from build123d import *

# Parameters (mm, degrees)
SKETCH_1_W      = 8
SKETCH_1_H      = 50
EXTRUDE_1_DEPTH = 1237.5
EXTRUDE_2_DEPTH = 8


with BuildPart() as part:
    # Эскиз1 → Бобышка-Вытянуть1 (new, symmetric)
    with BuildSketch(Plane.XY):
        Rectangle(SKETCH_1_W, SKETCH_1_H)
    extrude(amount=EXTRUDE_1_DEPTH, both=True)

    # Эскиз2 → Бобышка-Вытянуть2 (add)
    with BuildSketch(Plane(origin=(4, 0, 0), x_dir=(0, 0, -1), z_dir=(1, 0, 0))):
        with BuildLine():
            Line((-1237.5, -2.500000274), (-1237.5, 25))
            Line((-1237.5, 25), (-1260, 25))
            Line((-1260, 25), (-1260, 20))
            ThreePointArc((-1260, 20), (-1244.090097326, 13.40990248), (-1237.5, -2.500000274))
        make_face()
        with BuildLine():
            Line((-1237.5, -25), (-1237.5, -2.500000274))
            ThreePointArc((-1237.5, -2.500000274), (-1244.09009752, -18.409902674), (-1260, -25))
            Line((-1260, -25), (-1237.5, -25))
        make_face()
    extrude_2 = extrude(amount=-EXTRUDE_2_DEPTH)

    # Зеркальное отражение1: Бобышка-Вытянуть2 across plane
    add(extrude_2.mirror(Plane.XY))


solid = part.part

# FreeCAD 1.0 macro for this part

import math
import FreeCAD as App
import Part
import Sketcher
from FreeCAD import Vector


def add_polygon(sketch, points):
    """Adds a closed chain of lines whose ends are joined by coincident constraints."""
    first, n = sketch.GeometryCount, len(points)
    for a, b in zip(points, points[1:] + points[:1]):
        sketch.addGeometry(Part.LineSegment(App.Vector(*a, 0), App.Vector(*b, 0)), False)
    for i in range(n):
        sketch.addConstraint(Sketcher.Constraint("Coincident", first + i, 2, first + (i + 1) % n, 1))

doc = App.newDocument("Part")
body = doc.addObject("PartDesign::Body", "Body")

# Sketch on XY plane
sketch1 = doc.addObject("Sketcher::SketchObject", "Sketch")
body.addObject(sketch1)
sketch1.AttachmentSupport = (doc.XY_Plane, [""])
sketch1.MapMode = "FlatFace"
add_polygon(sketch1, [(-4, 25), (-4, -25), (4, -25), (4, 25)])  # lines 0-3
sketch1.addConstraint([
    Sketcher.Constraint("Vertical", 0),
    Sketcher.Constraint("Horizontal", 1),
    Sketcher.Constraint("Vertical", 2),
    Sketcher.Constraint("Horizontal", 3),
    Sketcher.Constraint("Symmetric", 0, 2, 2, 2, -1, 1),
    Sketcher.Constraint("DistanceX", 1, 1, 1, 2, 8.0),
    Sketcher.Constraint("DistanceY", 0, 2, 0, 1, 50.0),
])
pad1 = doc.addObject("PartDesign::Pad", "Pad")
body.addObject(pad1)
pad1.Profile = sketch1
pad1.Length = 2475
pad1.Midplane = True

# Sketch on YZ plane
sketch2 = doc.addObject("Sketcher::SketchObject", "Sketch001")
body.addObject(sketch2)
sketch2.AttachmentSupport = (doc.YZ_Plane, [""])
sketch2.MapMode = "FlatFace"
sketch2.AttachmentOffset = App.Placement(Vector(0, 0, 4), App.Rotation())
sketch2.addGeometry([
    Part.LineSegment(Vector(-2.5, 1237.5, 0), Vector(25, 1237.5, 0)),  # 0
    Part.LineSegment(Vector(25, 1237.5, 0), Vector(25, 1260, 0)),  # 1
    Part.LineSegment(Vector(25, 1260, 0), Vector(20, 1260, 0)),  # 2
    Part.ArcOfCircle(Part.Circle(Vector(-2.5, 1260, 0), Vector(0, 0, 1), 22.5), math.radians(-90.000001), math.radians(0)),  # 3
    Part.LineSegment(Vector(-25, 1237.5, 0), Vector(-2.5, 1237.5, 0)),  # 4
    Part.ArcOfCircle(Part.Circle(Vector(-2.5, 1260, 0), Vector(0, 0, 1), 22.5), math.radians(180), math.radians(269.999999)),  # 5
    Part.LineSegment(Vector(-25, 1260, 0), Vector(-25, 1237.5, 0)),  # 6
], False)
sketch2.addConstraint([
    Sketcher.Constraint("Coincident", 0, 2, 1, 1),
    Sketcher.Constraint("Coincident", 1, 2, 2, 1),
    Sketcher.Constraint("Coincident", 2, 2, 3, 2),
    Sketcher.Constraint("Tangent", 3, 1, 0, 1),
    Sketcher.Constraint("Tangent", 4, 2, 5, 2),
    Sketcher.Constraint("Tangent", 5, 1, 6, 1),
    Sketcher.Constraint("Coincident", 6, 2, 4, 1),
    Sketcher.Constraint("Horizontal", 0),
    Sketcher.Constraint("Vertical", 1),
    Sketcher.Constraint("Horizontal", 2),
    Sketcher.Constraint("Horizontal", 4),
    Sketcher.Constraint("Vertical", 6),
    Sketcher.Constraint("Coincident", 5, 3, 3, 3),
    Sketcher.Constraint("Equal", 3, 5),
    Sketcher.Constraint("Symmetric", 1, 2, 5, 1, -2),
    Sketcher.Constraint("Radius", 3, 22.5),
    Sketcher.Constraint("DistanceX", 2, 2, 2, 1, 5.0),
    Sketcher.Constraint("DistanceY", -1, 1, 3, 3, 1260.0),
])
pad2 = doc.addObject("PartDesign::Pad", "Pad001")
body.addObject(pad2)
pad2.Profile = sketch2
pad2.Length = 8
pad2.Reversed = True
doc.recompute()

mirrored = doc.addObject("PartDesign::Mirrored", "Mirrored")
body.addObject(mirrored)
mirrored.Originals = [pad2]
mirrored.MirrorPlane = (doc.XY_Plane, [""])
body.Tip = mirrored

doc.recompute()
